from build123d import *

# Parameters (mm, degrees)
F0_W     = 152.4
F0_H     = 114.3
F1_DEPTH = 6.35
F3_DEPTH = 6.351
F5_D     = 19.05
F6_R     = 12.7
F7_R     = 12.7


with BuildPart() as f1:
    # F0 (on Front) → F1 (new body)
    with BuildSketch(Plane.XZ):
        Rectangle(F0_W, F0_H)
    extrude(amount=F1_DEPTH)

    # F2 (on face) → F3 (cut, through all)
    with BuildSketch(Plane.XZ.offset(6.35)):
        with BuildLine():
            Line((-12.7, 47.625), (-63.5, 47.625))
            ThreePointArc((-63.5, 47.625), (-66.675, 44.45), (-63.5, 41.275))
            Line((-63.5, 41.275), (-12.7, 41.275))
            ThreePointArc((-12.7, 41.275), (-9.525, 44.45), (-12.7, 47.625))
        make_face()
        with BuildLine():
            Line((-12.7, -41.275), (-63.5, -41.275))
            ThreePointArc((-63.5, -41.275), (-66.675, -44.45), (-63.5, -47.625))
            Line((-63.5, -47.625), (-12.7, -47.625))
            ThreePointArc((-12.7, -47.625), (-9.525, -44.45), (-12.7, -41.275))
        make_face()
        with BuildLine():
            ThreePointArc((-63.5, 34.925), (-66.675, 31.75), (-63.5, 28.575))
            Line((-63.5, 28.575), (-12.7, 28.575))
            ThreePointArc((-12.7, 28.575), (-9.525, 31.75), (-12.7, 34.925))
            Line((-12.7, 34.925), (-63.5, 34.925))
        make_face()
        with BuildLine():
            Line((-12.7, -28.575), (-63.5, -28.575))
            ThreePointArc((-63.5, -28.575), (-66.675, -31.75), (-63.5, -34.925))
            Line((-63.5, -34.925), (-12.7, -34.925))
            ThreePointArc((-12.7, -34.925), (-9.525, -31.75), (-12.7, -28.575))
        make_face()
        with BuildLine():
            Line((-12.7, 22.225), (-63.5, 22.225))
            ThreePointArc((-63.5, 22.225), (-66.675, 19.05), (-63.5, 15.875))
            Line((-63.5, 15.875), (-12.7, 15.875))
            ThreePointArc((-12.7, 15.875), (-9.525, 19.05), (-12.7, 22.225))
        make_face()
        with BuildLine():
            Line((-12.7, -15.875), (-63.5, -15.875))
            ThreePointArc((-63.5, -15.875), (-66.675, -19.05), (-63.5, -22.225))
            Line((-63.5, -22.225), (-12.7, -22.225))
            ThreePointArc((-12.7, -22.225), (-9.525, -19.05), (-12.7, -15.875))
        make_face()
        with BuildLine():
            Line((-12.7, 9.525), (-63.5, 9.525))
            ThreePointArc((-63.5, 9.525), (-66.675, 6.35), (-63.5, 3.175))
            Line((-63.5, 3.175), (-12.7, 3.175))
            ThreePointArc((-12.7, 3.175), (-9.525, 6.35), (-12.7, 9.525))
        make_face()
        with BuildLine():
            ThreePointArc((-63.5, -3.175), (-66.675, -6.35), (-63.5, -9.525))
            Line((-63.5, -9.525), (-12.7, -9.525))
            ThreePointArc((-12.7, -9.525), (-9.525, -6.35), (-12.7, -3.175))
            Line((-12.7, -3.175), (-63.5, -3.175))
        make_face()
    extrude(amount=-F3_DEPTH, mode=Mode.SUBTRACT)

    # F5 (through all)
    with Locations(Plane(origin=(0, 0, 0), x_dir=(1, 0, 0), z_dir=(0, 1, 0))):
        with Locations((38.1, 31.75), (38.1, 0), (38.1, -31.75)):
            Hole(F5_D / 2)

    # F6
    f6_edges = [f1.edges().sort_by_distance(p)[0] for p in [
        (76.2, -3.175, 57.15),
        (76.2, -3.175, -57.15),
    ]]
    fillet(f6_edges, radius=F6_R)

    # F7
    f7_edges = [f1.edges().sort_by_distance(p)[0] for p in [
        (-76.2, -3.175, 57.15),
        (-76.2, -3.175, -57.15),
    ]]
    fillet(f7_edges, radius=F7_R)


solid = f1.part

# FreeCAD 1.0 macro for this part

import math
import FreeCAD as App
import Part
import Sketcher

V = App.Vector
Q = App.Units.Quantity


def edges_at(feature, points):
    """Names of the edges that pass closest to the given points."""
    edges = feature.Shape.Edges
    near = lambda p: min(range(len(edges)), key=lambda i: edges[i].distToShape(Part.Vertex(*p))[0])
    return sorted({f"Edge{near(p) + 1}" for p in points})


def add_polygon(sketch, points):
    """Adds a closed chain of lines whose ends are joined by coincident constraints."""
    first, n = sketch.GeometryCount, len(points)
    for a, b in zip(points, points[1:] + points[:1]):
        sketch.addGeometry(Part.LineSegment(App.Vector(*a, 0), App.Vector(*b, 0)), False)
    for i in range(n):
        sketch.addConstraint(Sketcher.Constraint("Coincident", first + i, 2, first + (i + 1) % n, 1))

doc = App.newDocument("Part")
params = doc.addObject("Spreadsheet::Sheet", "Params")
for row, (alias, value) in enumerate([
    ("sketch1_width", "6 in"),
    ("sketch1_height", "4.5 in"),
    ("pad1_length", "0.25 in"),
    ("sketch2_width", "2 in"),
    ("sketch2_radius", "0.125 in"),
    ("sketch3_diameter", "0.75 in"),
    ("hole_diameter", "0.75 in"),
    ("fillet_radius", "0.5 in"),
    ("fillet2_radius", "0.5 in"),
], start=1):
    params.set(f"A{row}", alias)
    params.set(f"B{row}", "=" + value)
    params.setAlias(f"B{row}", alias)

body = doc.addObject("PartDesign::Body", "Body")

sketch1 = doc.addObject("Sketcher::SketchObject", "Sketch")
body.addObject(sketch1)
sketch1.AttachmentSupport = (doc.XZ_Plane, [""])
sketch1.MapMode = "FlatFace"
add_polygon(sketch1, [(-76, 57), (-76, -57), (76, -57), (76, 57)])
sketch1.addConstraint(Sketcher.Constraint("Vertical", 0))
sketch1.addConstraint(Sketcher.Constraint("Horizontal", 1))
sketch1.addConstraint(Sketcher.Constraint("Vertical", 2))
sketch1.addConstraint(Sketcher.Constraint("Horizontal", 3))
sketch1.addConstraint(Sketcher.Constraint("Symmetric", 0, 2, 2, 2, -1, 1))
sketch1.addConstraint(Sketcher.Constraint("DistanceX", 1, 1, 1, 2, Q("6 in")))
sketch1.addConstraint(Sketcher.Constraint("DistanceY", 0, 2, 0, 1, Q("4.5 in")))
sketch1.setExpression("Constraints[9]", "Params.sketch1_width")
sketch1.setExpression("Constraints[10]", "Params.sketch1_height")
pad1 = doc.addObject("PartDesign::Pad", "Pad")
body.addObject(pad1)
pad1.Profile = sketch1
pad1.setExpression("Length", "Params.pad1_length")

sketch2 = doc.addObject("Sketcher::SketchObject", "Sketch001")
body.addObject(sketch2)
sketch2.AttachmentSupport = (doc.XZ_Plane, [""])
sketch2.MapMode = "FlatFace"
sketch2.AttachmentOffset = App.Placement(V(0, 0, 0.25 * 25.4), App.Rotation())
sketch2.addGeometry(Part.LineSegment(V(-12.7, 47.6, 0), V(-63.5, 47.6, 0)), False)
sketch2.addGeometry(Part.ArcOfCircle(Part.Circle(V(-63.5, 44.5, 0), V(0, 0, 1), 3.2), math.radians(90), math.radians(270)), False)
sketch2.addGeometry(Part.LineSegment(V(-63.5, 41.3, 0), V(-12.7, 41.3, 0)), False)
sketch2.addGeometry(Part.ArcOfCircle(Part.Circle(V(-12.7, 44.5, 0), V(0, 0, 1), 3.2), math.radians(-90), math.radians(90)), False)
sketch2.addGeometry(Part.LineSegment(V(-12.7, -41.3, 0), V(-63.5, -41.3, 0)), False)
sketch2.addGeometry(Part.ArcOfCircle(Part.Circle(V(-63.5, -44.5, 0), V(0, 0, 1), 3.2), math.radians(90), math.radians(270)), False)
sketch2.addGeometry(Part.LineSegment(V(-63.5, -47.6, 0), V(-12.7, -47.6, 0)), False)
sketch2.addGeometry(Part.ArcOfCircle(Part.Circle(V(-12.7, -44.5, 0), V(0, 0, 1), 3.2), math.radians(-90), math.radians(90)), False)
sketch2.addGeometry(Part.ArcOfCircle(Part.Circle(V(-63.5, 31.8, 0), V(0, 0, 1), 3.2), math.radians(90), math.radians(270)), False)
sketch2.addGeometry(Part.LineSegment(V(-63.5, 28.6, 0), V(-12.7, 28.6, 0)), False)
sketch2.addGeometry(Part.ArcOfCircle(Part.Circle(V(-12.7, 31.8, 0), V(0, 0, 1), 3.2), math.radians(-90), math.radians(90)), False)
sketch2.addGeometry(Part.LineSegment(V(-12.7, 34.9, 0), V(-63.5, 34.9, 0)), False)
sketch2.addGeometry(Part.LineSegment(V(-12.7, -28.6, 0), V(-63.5, -28.6, 0)), False)
sketch2.addGeometry(Part.ArcOfCircle(Part.Circle(V(-63.5, -31.8, 0), V(0, 0, 1), 3.2), math.radians(90), math.radians(270)), False)
sketch2.addGeometry(Part.LineSegment(V(-63.5, -34.9, 0), V(-12.7, -34.9, 0)), False)
sketch2.addGeometry(Part.ArcOfCircle(Part.Circle(V(-12.7, -31.8, 0), V(0, 0, 1), 3.2), math.radians(-90), math.radians(90)), False)
sketch2.addGeometry(Part.LineSegment(V(-12.7, 22.2, 0), V(-63.5, 22.2, 0)), False)
sketch2.addGeometry(Part.ArcOfCircle(Part.Circle(V(-63.5, 19.1, 0), V(0, 0, 1), 3.2), math.radians(90), math.radians(270)), False)
sketch2.addGeometry(Part.LineSegment(V(-63.5, 15.9, 0), V(-12.7, 15.9, 0)), False)
sketch2.addGeometry(Part.ArcOfCircle(Part.Circle(V(-12.7, 19.1, 0), V(0, 0, 1), 3.2), math.radians(-90), math.radians(90)), False)
sketch2.addGeometry(Part.LineSegment(V(-12.7, -15.9, 0), V(-63.5, -15.9, 0)), False)
sketch2.addGeometry(Part.ArcOfCircle(Part.Circle(V(-63.5, -19.1, 0), V(0, 0, 1), 3.2), math.radians(90), math.radians(270)), False)
sketch2.addGeometry(Part.LineSegment(V(-63.5, -22.2, 0), V(-12.7, -22.2, 0)), False)
sketch2.addGeometry(Part.ArcOfCircle(Part.Circle(V(-12.7, -19.1, 0), V(0, 0, 1), 3.2), math.radians(-90), math.radians(90)), False)
sketch2.addGeometry(Part.LineSegment(V(-12.7, 9.5, 0), V(-63.5, 9.5, 0)), False)
sketch2.addGeometry(Part.ArcOfCircle(Part.Circle(V(-63.5, 6.3, 0), V(0, 0, 1), 3.2), math.radians(90), math.radians(270)), False)
sketch2.addGeometry(Part.LineSegment(V(-63.5, 3.2, 0), V(-12.7, 3.2, 0)), False)
sketch2.addGeometry(Part.ArcOfCircle(Part.Circle(V(-12.7, 6.3, 0), V(0, 0, 1), 3.2), math.radians(-90), math.radians(90)), False)
sketch2.addGeometry(Part.ArcOfCircle(Part.Circle(V(-63.5, -6.3, 0), V(0, 0, 1), 3.2), math.radians(90), math.radians(270)), False)
sketch2.addGeometry(Part.LineSegment(V(-63.5, -9.5, 0), V(-12.7, -9.5, 0)), False)
sketch2.addGeometry(Part.ArcOfCircle(Part.Circle(V(-12.7, -6.3, 0), V(0, 0, 1), 3.2), math.radians(-90), math.radians(90)), False)
sketch2.addGeometry(Part.LineSegment(V(-12.7, -3.2, 0), V(-63.5, -3.2, 0)), False)
sketch2.addConstraint(Sketcher.Constraint("Tangent", 0, 2, 1, 1))
sketch2.addConstraint(Sketcher.Constraint("Tangent", 1, 2, 2, 1))
sketch2.addConstraint(Sketcher.Constraint("Tangent", 2, 2, 3, 1))
sketch2.addConstraint(Sketcher.Constraint("Tangent", 3, 2, 0, 1))
sketch2.addConstraint(Sketcher.Constraint("Tangent", 4, 2, 5, 1))
sketch2.addConstraint(Sketcher.Constraint("Tangent", 5, 2, 6, 1))
sketch2.addConstraint(Sketcher.Constraint("Tangent", 6, 2, 7, 1))
sketch2.addConstraint(Sketcher.Constraint("Tangent", 7, 2, 4, 1))
sketch2.addConstraint(Sketcher.Constraint("Tangent", 8, 2, 9, 1))
sketch2.addConstraint(Sketcher.Constraint("Tangent", 9, 2, 10, 1))
sketch2.addConstraint(Sketcher.Constraint("Tangent", 10, 2, 11, 1))
sketch2.addConstraint(Sketcher.Constraint("Tangent", 11, 2, 8, 1))
sketch2.addConstraint(Sketcher.Constraint("Tangent", 12, 2, 13, 1))
sketch2.addConstraint(Sketcher.Constraint("Tangent", 13, 2, 14, 1))
sketch2.addConstraint(Sketcher.Constraint("Tangent", 14, 2, 15, 1))
sketch2.addConstraint(Sketcher.Constraint("Tangent", 15, 2, 12, 1))
sketch2.addConstraint(Sketcher.Constraint("Tangent", 16, 2, 17, 1))
sketch2.addConstraint(Sketcher.Constraint("Tangent", 17, 2, 18, 1))
sketch2.addConstraint(Sketcher.Constraint("Tangent", 18, 2, 19, 1))
sketch2.addConstraint(Sketcher.Constraint("Tangent", 19, 2, 16, 1))
sketch2.addConstraint(Sketcher.Constraint("Tangent", 20, 2, 21, 1))
sketch2.addConstraint(Sketcher.Constraint("Tangent", 21, 2, 22, 1))
sketch2.addConstraint(Sketcher.Constraint("Tangent", 22, 2, 23, 1))
sketch2.addConstraint(Sketcher.Constraint("Tangent", 23, 2, 20, 1))
sketch2.addConstraint(Sketcher.Constraint("Tangent", 24, 2, 25, 1))
sketch2.addConstraint(Sketcher.Constraint("Tangent", 25, 2, 26, 1))
sketch2.addConstraint(Sketcher.Constraint("Tangent", 26, 2, 27, 1))
sketch2.addConstraint(Sketcher.Constraint("Tangent", 27, 2, 24, 1))
sketch2.addConstraint(Sketcher.Constraint("Tangent", 28, 2, 29, 1))
sketch2.addConstraint(Sketcher.Constraint("Tangent", 29, 2, 30, 1))
sketch2.addConstraint(Sketcher.Constraint("Tangent", 30, 2, 31, 1))
sketch2.addConstraint(Sketcher.Constraint("Tangent", 31, 2, 28, 1))
sketch2.addConstraint(Sketcher.Constraint("Horizontal", 0))
sketch2.addConstraint(Sketcher.Constraint("Horizontal", 2))
sketch2.addConstraint(Sketcher.Constraint("Horizontal", 4))
sketch2.addConstraint(Sketcher.Constraint("Horizontal", 6))
sketch2.addConstraint(Sketcher.Constraint("Horizontal", 9))
sketch2.addConstraint(Sketcher.Constraint("Horizontal", 11))
sketch2.addConstraint(Sketcher.Constraint("Horizontal", 12))
sketch2.addConstraint(Sketcher.Constraint("Horizontal", 14))
sketch2.addConstraint(Sketcher.Constraint("Horizontal", 16))
sketch2.addConstraint(Sketcher.Constraint("Horizontal", 18))
sketch2.addConstraint(Sketcher.Constraint("Horizontal", 20))
sketch2.addConstraint(Sketcher.Constraint("Horizontal", 22))
sketch2.addConstraint(Sketcher.Constraint("Horizontal", 24))
sketch2.addConstraint(Sketcher.Constraint("Horizontal", 26))
sketch2.addConstraint(Sketcher.Constraint("Horizontal", 29))
sketch2.addConstraint(Sketcher.Constraint("Horizontal", 31))
sketch2.addConstraint(Sketcher.Constraint("Equal", 3, 5))
sketch2.addConstraint(Sketcher.Constraint("Equal", 7, 8))
sketch2.addConstraint(Sketcher.Constraint("Equal", 10, 13))
sketch2.addConstraint(Sketcher.Constraint("Equal", 15, 17))
sketch2.addConstraint(Sketcher.Constraint("Equal", 19, 21))
sketch2.addConstraint(Sketcher.Constraint("Equal", 23, 25))
sketch2.addConstraint(Sketcher.Constraint("Equal", 27, 28))
sketch2.addConstraint(Sketcher.Constraint("Symmetric", 1, 3, 5, 3, -1))
sketch2.addConstraint(Sketcher.Constraint("Symmetric", 8, 3, 13, 3, -1))
sketch2.addConstraint(Sketcher.Constraint("Symmetric", 17, 3, 21, 3, -1))
sketch2.addConstraint(Sketcher.Constraint("Symmetric", 25, 3, 28, 3, -1))
sketch2.addConstraint(Sketcher.Constraint("Vertical", 3, 3, 7, 3))
sketch2.addConstraint(Sketcher.Constraint("Vertical", 5, 3, 8, 3))
sketch2.addConstraint(Sketcher.Constraint("Vertical", 7, 3, 10, 3))
sketch2.addConstraint(Sketcher.Constraint("Vertical", 10, 3, 15, 3))
sketch2.addConstraint(Sketcher.Constraint("Vertical", 13, 3, 17, 3))
sketch2.addConstraint(Sketcher.Constraint("Vertical", 15, 3, 19, 3))
sketch2.addConstraint(Sketcher.Constraint("Vertical", 19, 3, 23, 3))
sketch2.addConstraint(Sketcher.Constraint("Vertical", 21, 3, 25, 3))
sketch2.addConstraint(Sketcher.Constraint("Vertical", 23, 3, 27, 3))
sketch2.addConstraint(Sketcher.Constraint("Vertical", 27, 3, 30, 3))
sketch2.addConstraint(Sketcher.Constraint("DistanceX", 0, 2, 0, 1, Q("2 in")))
sketch2.addConstraint(Sketcher.Constraint("Radius", 1, Q("0.125 in")))
sketch2.addConstraint(Sketcher.Constraint("DistanceY", 5, 3, 8, 3, Q("3 in")))
sketch2.addConstraint(Sketcher.Constraint("DistanceY", 17, 3, 1, 3, Q("1 in")))
sketch2.addConstraint(Sketcher.Constraint("DistanceY", 25, 3, 8, 3, Q("1 in")))
sketch2.addConstraint(Sketcher.Constraint("DistanceX", 1, 3, -1, 1, Q("2.5 in")))
sketch2.addConstraint(Sketcher.Constraint("DistanceY", 5, 3, 1, 3, Q("3.5 in")))
sketch2.setExpression("Constraints[69]", "Params.sketch2_width")
sketch2.setExpression("Constraints[70]", "Params.sketch2_radius")
pocket1 = doc.addObject("PartDesign::Pocket", "Pocket")
body.addObject(pocket1)
pocket1.Profile = sketch2
pocket1.Type = "ThroughAll"

sketch3 = doc.addObject("Sketcher::SketchObject", "Sketch002")
body.addObject(sketch3)
sketch3.AttachmentSupport = (doc.XZ_Plane, [""])
sketch3.MapMode = "FlatFace"
sketch3.addGeometry(Part.Circle(V(38, -32, 0), V(0, 0, 1), 10), False)
sketch3.addGeometry(Part.Circle(V(38, 0, 0), V(0, 0, 1), 10), False)
sketch3.addGeometry(Part.Circle(V(38, 32, 0), V(0, 0, 1), 10), False)
sketch3.addConstraint(Sketcher.Constraint("Equal", 0, 1))
sketch3.addConstraint(Sketcher.Constraint("Equal", 1, 2))
sketch3.addConstraint(Sketcher.Constraint("Symmetric", 0, 3, 2, 3, -1))
sketch3.addConstraint(Sketcher.Constraint("PointOnObject", 1, 3, -1))
sketch3.addConstraint(Sketcher.Constraint("Vertical", 0, 3, 1, 3))
sketch3.addConstraint(Sketcher.Constraint("Diameter", 0, Q("0.75 in")))
sketch3.addConstraint(Sketcher.Constraint("DistanceX", -1, 1, 0, 3, Q("1.5 in")))
sketch3.addConstraint(Sketcher.Constraint("DistanceY", 0, 3, 2, 3, Q("2.5 in")))
sketch3.setExpression("Constraints[5]", "Params.sketch3_diameter")
doc.recompute()
hole = doc.addObject("PartDesign::Hole", "Hole")
body.addObject(hole)
hole.Profile = sketch3
hole.ThreadType = "None"
hole.setExpression("Diameter", "Params.hole_diameter")
hole.DepthType = "ThroughAll"
hole.Reversed = True
doc.recompute()

fillet = doc.addObject("PartDesign::Fillet", "Fillet")
body.addObject(fillet)
fillet.Base = (hole, edges_at(hole, [(76.2, -3.175, 57.15), (76.2, -3.175, -57.15)]))
fillet.setExpression("Radius", "Params.fillet_radius")
doc.recompute()

fillet2 = doc.addObject("PartDesign::Fillet", "Fillet001")
body.addObject(fillet2)
fillet2.Base = (fillet, edges_at(fillet, [(-76.2, -3.175, 57.15), (-76.2, -3.175, -57.15)]))
fillet2.setExpression("Radius", "Params.fillet2_radius")

doc.recompute()
